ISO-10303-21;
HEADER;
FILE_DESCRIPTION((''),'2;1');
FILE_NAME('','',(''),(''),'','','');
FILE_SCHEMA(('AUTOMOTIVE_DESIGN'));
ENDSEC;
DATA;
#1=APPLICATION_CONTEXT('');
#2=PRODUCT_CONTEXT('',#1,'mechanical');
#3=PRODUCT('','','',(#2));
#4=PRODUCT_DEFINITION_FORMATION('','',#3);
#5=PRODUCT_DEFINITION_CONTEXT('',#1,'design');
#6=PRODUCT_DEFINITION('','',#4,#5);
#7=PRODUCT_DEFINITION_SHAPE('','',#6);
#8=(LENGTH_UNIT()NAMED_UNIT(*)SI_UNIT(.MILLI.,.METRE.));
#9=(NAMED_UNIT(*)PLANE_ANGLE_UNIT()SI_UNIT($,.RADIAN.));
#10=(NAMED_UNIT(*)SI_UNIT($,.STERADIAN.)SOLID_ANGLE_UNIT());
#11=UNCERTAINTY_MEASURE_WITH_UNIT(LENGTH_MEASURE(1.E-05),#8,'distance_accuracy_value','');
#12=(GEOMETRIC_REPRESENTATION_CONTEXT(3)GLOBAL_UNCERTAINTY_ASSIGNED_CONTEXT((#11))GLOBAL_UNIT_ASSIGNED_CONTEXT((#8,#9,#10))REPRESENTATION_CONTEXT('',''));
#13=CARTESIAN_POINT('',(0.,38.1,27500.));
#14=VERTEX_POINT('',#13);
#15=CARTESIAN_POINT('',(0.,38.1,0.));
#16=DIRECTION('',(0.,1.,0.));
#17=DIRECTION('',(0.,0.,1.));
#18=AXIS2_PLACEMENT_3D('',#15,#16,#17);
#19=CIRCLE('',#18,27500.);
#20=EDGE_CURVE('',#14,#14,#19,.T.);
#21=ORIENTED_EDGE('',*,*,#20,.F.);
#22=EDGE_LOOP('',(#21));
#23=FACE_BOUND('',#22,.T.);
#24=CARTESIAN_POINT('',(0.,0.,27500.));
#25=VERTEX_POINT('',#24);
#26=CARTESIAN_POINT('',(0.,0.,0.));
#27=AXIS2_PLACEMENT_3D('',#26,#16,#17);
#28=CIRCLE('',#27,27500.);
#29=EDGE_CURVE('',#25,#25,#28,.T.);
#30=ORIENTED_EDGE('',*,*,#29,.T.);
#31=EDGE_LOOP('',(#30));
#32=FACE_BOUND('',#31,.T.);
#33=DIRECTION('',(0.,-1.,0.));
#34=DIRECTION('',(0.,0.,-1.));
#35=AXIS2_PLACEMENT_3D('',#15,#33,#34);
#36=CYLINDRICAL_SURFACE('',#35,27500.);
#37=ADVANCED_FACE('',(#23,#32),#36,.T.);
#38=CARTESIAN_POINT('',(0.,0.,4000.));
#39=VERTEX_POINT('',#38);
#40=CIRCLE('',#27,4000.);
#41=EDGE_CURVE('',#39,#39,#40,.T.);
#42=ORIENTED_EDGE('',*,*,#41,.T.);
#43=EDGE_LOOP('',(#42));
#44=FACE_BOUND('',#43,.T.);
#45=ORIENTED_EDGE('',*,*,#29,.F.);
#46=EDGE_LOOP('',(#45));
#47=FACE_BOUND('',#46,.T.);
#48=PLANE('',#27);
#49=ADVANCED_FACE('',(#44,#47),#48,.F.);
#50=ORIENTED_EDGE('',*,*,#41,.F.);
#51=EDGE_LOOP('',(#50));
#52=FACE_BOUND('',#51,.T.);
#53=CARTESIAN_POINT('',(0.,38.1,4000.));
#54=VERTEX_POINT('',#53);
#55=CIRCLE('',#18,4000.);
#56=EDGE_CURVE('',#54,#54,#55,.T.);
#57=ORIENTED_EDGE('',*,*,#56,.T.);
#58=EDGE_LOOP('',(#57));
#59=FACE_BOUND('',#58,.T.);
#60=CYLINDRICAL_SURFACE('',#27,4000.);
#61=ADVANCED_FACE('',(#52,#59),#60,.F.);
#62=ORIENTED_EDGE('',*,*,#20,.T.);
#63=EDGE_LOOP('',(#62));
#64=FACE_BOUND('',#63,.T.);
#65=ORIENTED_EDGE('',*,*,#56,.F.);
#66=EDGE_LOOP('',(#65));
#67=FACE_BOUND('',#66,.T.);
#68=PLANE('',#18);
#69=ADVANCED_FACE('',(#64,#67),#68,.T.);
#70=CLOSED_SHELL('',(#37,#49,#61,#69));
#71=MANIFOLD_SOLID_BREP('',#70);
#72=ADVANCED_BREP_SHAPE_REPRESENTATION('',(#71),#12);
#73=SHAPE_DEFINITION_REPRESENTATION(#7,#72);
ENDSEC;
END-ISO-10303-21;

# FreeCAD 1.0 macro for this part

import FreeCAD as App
import Part
import Sketcher
Q = App.Units.Quantity

doc = App.newDocument("Part")
body = doc.addObject("PartDesign::Body", "Body")

# Sketch on XZ plane
sketch1 = doc.addObject("Sketcher::SketchObject", "Sketch")
body.addObject(sketch1)
sketch1.AttachmentSupport = (doc.XZ_Plane, [""])
sketch1.MapMode = "FlatFace"
sketch1.addGeometry(Part.Circle(App.Vector(0, 0, 0), App.Vector(0, 0, 1), 27500), False)
sketch1.addConstraint(Sketcher.Constraint("Coincident", 0, 3, -1, 1))
sketch1.addConstraint(Sketcher.Constraint("Diameter", 0, Q("55000 mm")))
pad1 = doc.addObject("PartDesign::Pad", "Pad")
body.addObject(pad1)
pad1.Profile = sketch1
pad1.Length = 38.1
pad1.Reversed = True

# Sketch on XZ plane
sketch2 = doc.addObject("Sketcher::SketchObject", "Sketch001")
body.addObject(sketch2)
sketch2.AttachmentSupport = (doc.XZ_Plane, [""])
sketch2.MapMode = "FlatFace"
sketch2.AttachmentOffset = App.Placement(App.Vector(0, 0, -38.1), App.Rotation())
sketch2.addGeometry(Part.Circle(App.Vector(0, 0, 0), App.Vector(0, 0, 1), 4000), False)
sketch2.addConstraint(Sketcher.Constraint("Coincident", 0, 3, -1, 1))
sketch2.addConstraint(Sketcher.Constraint("Diameter", 0, Q("8000 mm")))
pocket1 = doc.addObject("PartDesign::Pocket", "Pocket")
body.addObject(pocket1)
pocket1.Profile = sketch2
pocket1.Length = 38.1
pocket1.Reversed = True

doc.recompute()
